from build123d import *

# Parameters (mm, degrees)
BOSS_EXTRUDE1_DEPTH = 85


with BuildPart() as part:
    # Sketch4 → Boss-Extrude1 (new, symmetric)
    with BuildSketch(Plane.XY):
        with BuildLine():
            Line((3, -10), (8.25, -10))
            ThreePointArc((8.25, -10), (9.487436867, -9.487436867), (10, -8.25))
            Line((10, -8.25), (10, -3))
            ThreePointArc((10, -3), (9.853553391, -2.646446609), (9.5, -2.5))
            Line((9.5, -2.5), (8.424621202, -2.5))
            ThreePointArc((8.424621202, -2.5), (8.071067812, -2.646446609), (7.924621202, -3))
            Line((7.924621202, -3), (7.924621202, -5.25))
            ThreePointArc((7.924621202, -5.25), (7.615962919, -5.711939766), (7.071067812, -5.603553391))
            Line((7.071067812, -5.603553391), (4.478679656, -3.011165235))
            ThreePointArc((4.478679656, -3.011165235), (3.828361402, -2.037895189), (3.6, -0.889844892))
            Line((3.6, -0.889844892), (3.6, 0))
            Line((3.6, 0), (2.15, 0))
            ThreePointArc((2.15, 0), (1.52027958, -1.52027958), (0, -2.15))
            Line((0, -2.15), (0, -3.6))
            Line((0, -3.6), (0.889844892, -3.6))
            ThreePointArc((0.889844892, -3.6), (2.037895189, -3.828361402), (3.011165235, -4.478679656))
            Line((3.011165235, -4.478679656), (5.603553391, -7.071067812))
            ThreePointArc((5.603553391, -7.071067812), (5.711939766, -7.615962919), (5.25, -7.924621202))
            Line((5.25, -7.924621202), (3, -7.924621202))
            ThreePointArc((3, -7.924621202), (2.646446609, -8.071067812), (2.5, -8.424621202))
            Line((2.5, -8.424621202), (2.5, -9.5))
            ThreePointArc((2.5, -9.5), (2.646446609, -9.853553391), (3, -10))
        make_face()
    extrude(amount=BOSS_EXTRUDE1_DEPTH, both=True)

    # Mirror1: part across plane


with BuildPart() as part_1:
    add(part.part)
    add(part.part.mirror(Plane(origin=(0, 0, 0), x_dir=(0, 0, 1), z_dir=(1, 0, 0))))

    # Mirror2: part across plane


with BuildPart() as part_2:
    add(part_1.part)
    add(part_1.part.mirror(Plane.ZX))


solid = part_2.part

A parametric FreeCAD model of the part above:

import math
import FreeCAD as App
import Part
import Sketcher
Q = App.Units.Quantity

doc = App.newDocument("Part")
params = doc.addObject("Spreadsheet::Sheet", "Params")
for row, (alias, value) in enumerate([
    ("sketch1_radius", "3 mm"),
    ("sketch1_radius2", "0.5 mm"),
    ("sketch1_radius3", "1.75 mm"),
    ("sketch1_radius4", "2.15 mm"),
    ("sketch1_width", "1.45 mm"),
    ("pad1_length", "170 mm"),
], start=1):
    params.set(f"A{row}", alias)
    params.set(f"B{row}", "=" + value)
    params.setAlias(f"B{row}", alias)

body = doc.addObject("PartDesign::Body", "Body")

# Sketch on XY plane
sketch1 = body.newObject("Sketcher::SketchObject", "Sketch")
sketch1.AttachmentSupport = (doc.getObject("XY_Plane"), [""])
sketch1.MapMode = "FlatFace"
sketch1.addGeometry([
    Part.LineSegment(App.Vector(3, -10, 0), App.Vector(8.25, -10, 0)),  # 0
    Part.ArcOfCircle(Part.Circle(App.Vector(8.25, -8.25, 0), App.Vector(0, 0, 1), 1.75), math.radians(-90), math.radians(0)),  # 1
    Part.LineSegment(App.Vector(10, -8.25, 0), App.Vector(10, -3, 0)),  # 2
    Part.ArcOfCircle(Part.Circle(App.Vector(9.5, -3, 0), App.Vector(0, 0, 1), 0.5), math.radians(0), math.radians(90)),  # 3
    Part.LineSegment(App.Vector(9.5, -2.5, 0), App.Vector(8.42, -2.5, 0)),  # 4
    Part.ArcOfCircle(Part.Circle(App.Vector(8.42, -3, 0), App.Vector(0, 0, 1), 0.5), math.radians(90), math.radians(180)),  # 5
    Part.LineSegment(App.Vector(7.92, -3, 0), App.Vector(7.92, -5.25, 0)),  # 6
    Part.ArcOfCircle(Part.Circle(App.Vector(7.42, -5.25, 0), App.Vector(0, 0, 1), 0.5), math.radians(-135), math.radians(0)),  # 7
    Part.LineSegment(App.Vector(7.07, -5.6, 0), App.Vector(4.48, -3.01, 0)),  # 8
    Part.ArcOfCircle(Part.Circle(App.Vector(6.6, -0.89, 0), App.Vector(0, 0, 1), 3), math.radians(180), math.radians(225)),  # 9
    Part.LineSegment(App.Vector(3.6, -0.89, 0), App.Vector(3.6, 0, 0)),  # 10
    Part.LineSegment(App.Vector(3.6, 0, 0), App.Vector(2.15, 0, 0)),  # 11
    Part.ArcOfCircle(Part.Circle(App.Vector(0, 0, 0), App.Vector(0, 0, 1), 2.15), math.radians(-90), math.radians(0)),  # 12
    Part.LineSegment(App.Vector(0, -2.15, 0), App.Vector(0, -3.6, 0)),  # 13
    Part.LineSegment(App.Vector(0, -3.6, 0), App.Vector(0.89, -3.6, 0)),  # 14
    Part.ArcOfCircle(Part.Circle(App.Vector(0.89, -6.6, 0), App.Vector(0, 0, 1), 3), math.radians(45), math.radians(90)),  # 15
    Part.LineSegment(App.Vector(3.01, -4.48, 0), App.Vector(5.6, -7.07, 0)),  # 16
    Part.ArcOfCircle(Part.Circle(App.Vector(5.25, -7.42, 0), App.Vector(0, 0, 1), 0.5), math.radians(-90), math.radians(45)),  # 17
    Part.LineSegment(App.Vector(5.25, -7.92, 0), App.Vector(3, -7.92, 0)),  # 18
    Part.ArcOfCircle(Part.Circle(App.Vector(3, -8.42, 0), App.Vector(0, 0, 1), 0.5), math.radians(90), math.radians(180)),  # 19
    Part.LineSegment(App.Vector(2.5, -8.42, 0), App.Vector(2.5, -9.5, 0)),  # 20
    Part.ArcOfCircle(Part.Circle(App.Vector(3, -9.5, 0), App.Vector(0, 0, 1), 0.5), math.radians(180), math.radians(270)),  # 21
], False)
sketch1.addConstraint([
    Sketcher.Constraint("Tangent", 0, 2, 1, 1),
    Sketcher.Constraint("Tangent", 1, 2, 2, 1),
    Sketcher.Constraint("Tangent", 2, 2, 3, 1),
    Sketcher.Constraint("Tangent", 3, 2, 4, 1),
    Sketcher.Constraint("Tangent", 4, 2, 5, 1),
    Sketcher.Constraint("Tangent", 5, 2, 6, 1),
    Sketcher.Constraint("Tangent", 6, 2, 7, 2),
    Sketcher.Constraint("Tangent", 7, 1, 8, 1),
    Sketcher.Constraint("Tangent", 8, 2, 9, 2),
    Sketcher.Constraint("Tangent", 9, 1, 10, 1),
    Sketcher.Constraint("Coincident", 10, 2, 11, 1),
    Sketcher.Constraint("Coincident", 11, 2, 12, 2),
    Sketcher.Constraint("Coincident", 12, 1, 13, 1),
    Sketcher.Constraint("Coincident", 13, 2, 14, 1),
    Sketcher.Constraint("Tangent", 14, 2, 15, 2),
    Sketcher.Constraint("Tangent", 15, 1, 16, 1),
    Sketcher.Constraint("Tangent", 16, 2, 17, 2),
    Sketcher.Constraint("Tangent", 17, 1, 18, 1),
    Sketcher.Constraint("Tangent", 18, 2, 19, 1),
    Sketcher.Constraint("Tangent", 19, 2, 20, 1),
    Sketcher.Constraint("Tangent", 20, 2, 21, 1),
    Sketcher.Constraint("Tangent", 21, 2, 0, 1),
    Sketcher.Constraint("Horizontal", 0),
    Sketcher.Constraint("Vertical", 2),
    Sketcher.Constraint("Horizontal", 4),
    Sketcher.Constraint("Vertical", 6),
    Sketcher.Constraint("Vertical", 10),
    Sketcher.Constraint("Horizontal", 11),
    Sketcher.Constraint("Vertical", 13),
    Sketcher.Constraint("Horizontal", 14),
    Sketcher.Constraint("Horizontal", 18),
    Sketcher.Constraint("Vertical", 20),
    Sketcher.Constraint("Coincident", 12, 3, -1, 1),
    Sketcher.Constraint("Equal", 3, 5),
    Sketcher.Constraint("Equal", 5, 7),
    Sketcher.Constraint("Equal", 9, 15),
    Sketcher.Constraint("Equal", 7, 17),
    Sketcher.Constraint("Equal", 17, 19),
    Sketcher.Constraint("Equal", 19, 21),
    Sketcher.Constraint("PointOnObject", 10, 2, -1),
    Sketcher.Constraint("PointOnObject", 12, 1, -2),
    Sketcher.Constraint("Parallel", 8, 16),
    Sketcher.Constraint("Equal", 0, 2),
    Sketcher.Constraint("Equal", 18, 6),
    Sketcher.Constraint("Equal", 14, 10),
    Sketcher.Constraint("Equal", 11, 13),
    Sketcher.Constraint("Equal", 4, 20),
    Sketcher.Constraint("Equal", 8, 16),
    Sketcher.Constraint("Radius", 9, Q("3 mm")),
    Sketcher.Constraint("Radius", 3, Q("0.5 mm")),
    Sketcher.Constraint("Radius", 1, Q("1.75 mm")),
    Sketcher.Constraint("Radius", 12, Q("2.15 mm")),
    Sketcher.Constraint("DistanceY", 3, 3, -1, 1, Q("3 mm")),
    Sketcher.Constraint("DistanceY", 0, 2, -1, 1, Q("10 mm")),
    Sketcher.Constraint("DistanceY", 1, 3, 7, 3, Q("3 mm")),
    Sketcher.Constraint("DistanceX", 11, 2, 11, 1, Q("1.45 mm")),
    Sketcher.Constraint("DistanceX", 4, 2, 4, 1, Q("1.075379 mm")),
])
sketch1.setExpression("Constraints[48]", "Params.sketch1_radius")
sketch1.setExpression("Constraints[49]", "Params.sketch1_radius2")
sketch1.setExpression("Constraints[50]", "Params.sketch1_radius3")
sketch1.setExpression("Constraints[51]", "Params.sketch1_radius4")
sketch1.setExpression("Constraints[55]", "Params.sketch1_width")
pad1 = body.newObject("PartDesign::Pad", "Pad")
pad1.Profile = sketch1
pad1.setExpression("Length", "Params.pad1_length")
pad1.Midplane = True
body2 = doc.addObject("PartDesign::Body", "Body001")
doc.recompute()

body2.BaseFeature = body
doc.recompute()

mirroring = doc.addObject("Part::Mirroring", "Mirroring")
mirroring.Source = body
mirroring.Base = App.Vector(0, 0, 0)
mirroring.Normal = App.Vector(1, 0, 0)
body3 = doc.addObject("PartDesign::Body", "Body002")
body3.BaseFeature = mirroring
boolean = body2.newObject("PartDesign::Boolean", "Boolean")
boolean.Type = "Fuse"
boolean.addObjects([body3])
doc.recompute()
body4 = doc.addObject("PartDesign::Body", "Body003")
doc.recompute()

body4.BaseFeature = body2
doc.recompute()

mirroring2 = doc.addObject("Part::Mirroring", "Mirroring001")
mirroring2.Source = body2
mirroring2.Base = App.Vector(0, 0, 0)
mirroring2.Normal = App.Vector(0, 1, 0)
body5 = doc.addObject("PartDesign::Body", "Body004")
body5.BaseFeature = mirroring2
boolean2 = body4.newObject("PartDesign::Boolean", "Boolean001")
boolean2.Type = "Fuse"
boolean2.addObjects([body5])
doc.recompute()
mirroring.Visibility = False
mirroring2.Visibility = False

doc.recompute()
